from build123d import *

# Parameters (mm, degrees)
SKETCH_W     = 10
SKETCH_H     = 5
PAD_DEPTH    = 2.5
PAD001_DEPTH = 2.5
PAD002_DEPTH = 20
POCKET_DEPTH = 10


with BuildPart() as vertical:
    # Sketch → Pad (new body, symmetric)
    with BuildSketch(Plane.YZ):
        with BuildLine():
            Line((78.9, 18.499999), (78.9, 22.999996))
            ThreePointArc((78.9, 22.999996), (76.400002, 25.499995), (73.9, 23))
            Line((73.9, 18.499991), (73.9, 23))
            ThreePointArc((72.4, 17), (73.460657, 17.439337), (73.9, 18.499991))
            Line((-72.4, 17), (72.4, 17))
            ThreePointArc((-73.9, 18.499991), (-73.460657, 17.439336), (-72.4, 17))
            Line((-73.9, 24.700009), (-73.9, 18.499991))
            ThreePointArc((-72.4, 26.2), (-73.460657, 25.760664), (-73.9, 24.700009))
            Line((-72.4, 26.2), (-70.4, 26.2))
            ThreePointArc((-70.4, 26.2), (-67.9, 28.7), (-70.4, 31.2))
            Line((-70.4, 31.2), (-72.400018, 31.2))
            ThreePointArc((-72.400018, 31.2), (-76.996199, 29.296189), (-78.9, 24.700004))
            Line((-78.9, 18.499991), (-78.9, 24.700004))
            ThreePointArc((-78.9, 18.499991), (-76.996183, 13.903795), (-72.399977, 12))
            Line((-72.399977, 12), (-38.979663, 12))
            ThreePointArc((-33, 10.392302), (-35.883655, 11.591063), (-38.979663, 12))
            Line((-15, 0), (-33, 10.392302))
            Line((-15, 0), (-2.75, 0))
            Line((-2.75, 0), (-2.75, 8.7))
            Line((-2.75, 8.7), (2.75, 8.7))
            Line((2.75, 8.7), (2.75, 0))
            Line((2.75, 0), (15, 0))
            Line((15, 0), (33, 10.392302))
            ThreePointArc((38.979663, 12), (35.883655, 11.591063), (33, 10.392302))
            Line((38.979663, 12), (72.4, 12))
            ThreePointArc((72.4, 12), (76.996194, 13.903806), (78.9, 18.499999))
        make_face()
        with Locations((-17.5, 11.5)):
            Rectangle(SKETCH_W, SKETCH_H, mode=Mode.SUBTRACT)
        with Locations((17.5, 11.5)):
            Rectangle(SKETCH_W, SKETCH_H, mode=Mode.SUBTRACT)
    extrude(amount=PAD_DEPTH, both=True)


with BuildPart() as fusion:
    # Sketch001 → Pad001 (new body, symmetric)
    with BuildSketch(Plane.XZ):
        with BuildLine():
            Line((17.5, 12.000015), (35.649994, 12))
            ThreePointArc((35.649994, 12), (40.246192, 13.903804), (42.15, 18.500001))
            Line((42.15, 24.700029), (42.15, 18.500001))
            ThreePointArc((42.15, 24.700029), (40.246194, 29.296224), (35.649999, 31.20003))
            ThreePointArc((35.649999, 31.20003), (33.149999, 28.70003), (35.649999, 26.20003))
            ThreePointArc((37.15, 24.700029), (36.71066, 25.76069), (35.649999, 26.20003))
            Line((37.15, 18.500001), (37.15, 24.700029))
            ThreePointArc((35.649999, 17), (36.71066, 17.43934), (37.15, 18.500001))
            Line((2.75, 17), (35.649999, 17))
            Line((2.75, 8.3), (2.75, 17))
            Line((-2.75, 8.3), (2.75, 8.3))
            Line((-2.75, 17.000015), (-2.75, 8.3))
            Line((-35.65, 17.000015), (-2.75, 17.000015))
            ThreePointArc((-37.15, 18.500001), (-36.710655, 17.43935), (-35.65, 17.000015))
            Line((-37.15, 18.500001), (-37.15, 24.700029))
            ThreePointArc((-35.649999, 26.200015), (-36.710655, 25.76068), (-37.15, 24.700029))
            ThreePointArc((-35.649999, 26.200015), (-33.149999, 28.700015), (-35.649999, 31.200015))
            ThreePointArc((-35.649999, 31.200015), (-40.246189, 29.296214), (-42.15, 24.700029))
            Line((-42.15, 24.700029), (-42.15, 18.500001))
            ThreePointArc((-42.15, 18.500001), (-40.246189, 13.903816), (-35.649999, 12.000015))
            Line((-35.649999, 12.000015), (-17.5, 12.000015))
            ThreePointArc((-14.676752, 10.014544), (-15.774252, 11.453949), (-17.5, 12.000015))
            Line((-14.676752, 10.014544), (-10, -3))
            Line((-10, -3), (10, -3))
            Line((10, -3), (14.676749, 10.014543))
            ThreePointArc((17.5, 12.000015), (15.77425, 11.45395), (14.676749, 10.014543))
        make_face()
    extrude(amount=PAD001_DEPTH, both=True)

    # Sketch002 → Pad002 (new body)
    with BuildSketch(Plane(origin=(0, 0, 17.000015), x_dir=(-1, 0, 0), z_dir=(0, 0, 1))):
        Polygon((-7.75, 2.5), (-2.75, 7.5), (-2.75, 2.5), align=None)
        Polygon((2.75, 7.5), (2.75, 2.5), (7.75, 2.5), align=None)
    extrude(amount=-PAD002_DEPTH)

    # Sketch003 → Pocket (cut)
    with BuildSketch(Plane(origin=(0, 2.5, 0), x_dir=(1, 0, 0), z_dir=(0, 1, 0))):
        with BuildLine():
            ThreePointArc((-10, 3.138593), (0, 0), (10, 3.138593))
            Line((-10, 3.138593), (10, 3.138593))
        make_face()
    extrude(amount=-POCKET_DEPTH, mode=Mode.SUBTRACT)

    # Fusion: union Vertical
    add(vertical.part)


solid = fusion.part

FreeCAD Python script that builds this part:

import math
import FreeCAD as App
import Part
import Sketcher
from FreeCAD import Vector
Q = App.Units.Quantity


def add_polygon(sketch, points):
    """Adds a closed chain of lines whose ends are joined by coincident constraints."""
    first, n = sketch.GeometryCount, len(points)
    for a, b in zip(points, points[1:] + points[:1]):
        sketch.addGeometry(Part.LineSegment(App.Vector(*a, 0), App.Vector(*b, 0)), False)
    for i in range(n):
        sketch.addConstraint(Sketcher.Constraint("Coincident", first + i, 2, first + (i + 1) % n, 1))

doc = App.newDocument("Part")
body = doc.addObject("PartDesign::Body", "Body")

sketch1 = doc.addObject("Sketcher::SketchObject", "Sketch")
body.addObject(sketch1)
sketch1.AttachmentSupport = (doc.YZ_Plane, [""])
sketch1.MapMode = "FlatFace"
sketch1.addGeometry(Part.LineSegment(Vector(78.9, 18.5, 0), Vector(78.9, 23, 0)), False)
sketch1.addGeometry(Part.ArcOfCircle(Part.Circle(Vector(76.4, 23, 0), Vector(0, 0, 1), 2.5), math.radians(0), math.radians(180)), False)
sketch1.addGeometry(Part.LineSegment(Vector(73.9, 23, 0), Vector(73.9, 18.5, 0)), False)
sketch1.addGeometry(Part.ArcOfCircle(Part.Circle(Vector(72.4, 18.5, 0), Vector(0, 0, 1), 1.5), math.radians(-90), math.radians(0)), False)
sketch1.addGeometry(Part.LineSegment(Vector(72.4, 17, 0), Vector(-72.4, 17, 0)), False)
sketch1.addGeometry(Part.ArcOfCircle(Part.Circle(Vector(-72.4, 18.5, 0), Vector(0, 0, 1), 1.5), math.radians(-180), math.radians(-90)), False)
sketch1.addGeometry(Part.LineSegment(Vector(-73.9, 18.5, 0), Vector(-73.9, 24.7, 0)), False)
sketch1.addGeometry(Part.ArcOfCircle(Part.Circle(Vector(-72.4, 24.7, 0), Vector(0, 0, 1), 1.5), math.radians(90), math.radians(180)), False)
sketch1.addGeometry(Part.LineSegment(Vector(-72.4, 26.2, 0), Vector(-70.4, 26.2, 0)), False)
sketch1.addGeometry(Part.ArcOfCircle(Part.Circle(Vector(-70.4, 28.7, 0), Vector(0, 0, 1), 2.5), math.radians(-90), math.radians(90)), False)
sketch1.addGeometry(Part.LineSegment(Vector(-70.4, 31.2, 0), Vector(-72.4, 31.2, 0)), False)
sketch1.addGeometry(Part.ArcOfCircle(Part.Circle(Vector(-72.4, 24.7, 0), Vector(0, 0, 1), 6.5), math.radians(90), math.radians(180)), False)
sketch1.addGeometry(Part.LineSegment(Vector(-78.9, 24.7, 0), Vector(-78.9, 18.5, 0)), False)
sketch1.addGeometry(Part.ArcOfCircle(Part.Circle(Vector(-72.4, 18.5, 0), Vector(0, 0, 1), 6.5), math.radians(-180), math.radians(-90)), False)
sketch1.addGeometry(Part.LineSegment(Vector(-72.4, 12, 0), Vector(-39, 12, 0)), False)
sketch1.addGeometry(Part.ArcOfCircle(Part.Circle(Vector(-39, 0.1, 0), Vector(0, 0, 1), 11.9), math.radians(60), math.radians(90)), False)
sketch1.addGeometry(Part.LineSegment(Vector(-33, 10.4, 0), Vector(-15, 0, 0)), False)
sketch1.addGeometry(Part.LineSegment(Vector(-15, 0, 0), Vector(-2.8, 0, 0)), False)
sketch1.addGeometry(Part.LineSegment(Vector(-2.8, 0, 0), Vector(-2.8, 8.7, 0)), False)
sketch1.addGeometry(Part.LineSegment(Vector(-2.8, 8.7, 0), Vector(2.8, 8.7, 0)), False)
sketch1.addGeometry(Part.LineSegment(Vector(2.8, 8.7, 0), Vector(2.8, 0, 0)), False)
sketch1.addGeometry(Part.LineSegment(Vector(2.8, 0, 0), Vector(15, 0, 0)), False)
sketch1.addGeometry(Part.LineSegment(Vector(15, 0, 0), Vector(33, 10.4, 0)), False)
sketch1.addGeometry(Part.ArcOfCircle(Part.Circle(Vector(39, 0.1, 0), Vector(0, 0, 1), 11.9), math.radians(90), math.radians(120)), False)
sketch1.addGeometry(Part.LineSegment(Vector(39, 12, 0), Vector(72.4, 12, 0)), False)
sketch1.addGeometry(Part.ArcOfCircle(Part.Circle(Vector(72.4, 18.5, 0), Vector(0, 0, 1), 6.5), math.radians(-90), math.radians(0)), False)
add_polygon(sketch1, [(-12.5, 9), (-22.5, 9), (-22.5, 14), (-12.5, 14)])
add_polygon(sketch1, [(22.5, 9), (12.5, 9), (12.5, 14), (22.5, 14)])
sketch1.addConstraint([
    Sketcher.Constraint("Tangent", 0, 2, 1, 1),
    Sketcher.Constraint("Coincident", 1, 2, 2, 1),
    Sketcher.Constraint("Coincident", 2, 2, 3, 2),
    Sketcher.Constraint("Tangent", 3, 1, 4, 1),
    Sketcher.Constraint("Tangent", 4, 2, 5, 2),
    Sketcher.Constraint("Coincident", 5, 1, 6, 1),
    Sketcher.Constraint("Coincident", 6, 2, 7, 2),
    Sketcher.Constraint("Tangent", 7, 1, 8, 1),
    Sketcher.Constraint("Tangent", 8, 2, 9, 1),
    Sketcher.Constraint("Tangent", 9, 2, 10, 1),
    Sketcher.Constraint("Coincident", 10, 2, 11, 1),
    Sketcher.Constraint("Tangent", 11, 2, 12, 1),
    Sketcher.Constraint("Tangent", 12, 2, 13, 1),
    Sketcher.Constraint("Coincident", 13, 2, 14, 1),
    Sketcher.Constraint("Tangent", 14, 2, 15, 2),
    Sketcher.Constraint("Coincident", 15, 1, 16, 1),
    Sketcher.Constraint("Coincident", 16, 2, 17, 1),
    Sketcher.Constraint("Coincident", 17, 2, 18, 1),
    Sketcher.Constraint("Coincident", 18, 2, 19, 1),
    Sketcher.Constraint("Coincident", 19, 2, 20, 1),
    Sketcher.Constraint("Coincident", 20, 2, 21, 1),
    Sketcher.Constraint("Coincident", 21, 2, 22, 1),
    Sketcher.Constraint("Coincident", 22, 2, 23, 2),
    Sketcher.Constraint("Tangent", 23, 1, 24, 1),
    Sketcher.Constraint("Tangent", 24, 2, 25, 1),
    Sketcher.Constraint("Tangent", 25, 2, 0, 1),
    Sketcher.Constraint("Vertical", 0),
    Sketcher.Constraint("Vertical", 2),
    Sketcher.Constraint("Horizontal", 4),
    Sketcher.Constraint("Vertical", 6),
    Sketcher.Constraint("Horizontal", 8),
    Sketcher.Constraint("Horizontal", 10),
    Sketcher.Constraint("Vertical", 12),
    Sketcher.Constraint("Horizontal", 14),
    Sketcher.Constraint("Horizontal", 17),
    Sketcher.Constraint("Vertical", 18),
    Sketcher.Constraint("Horizontal", 19),
    Sketcher.Constraint("Vertical", 20),
    Sketcher.Constraint("Horizontal", 21),
    Sketcher.Constraint("Horizontal", 24),
    Sketcher.Constraint("Horizontal", 26),
    Sketcher.Constraint("Vertical", 27),
    Sketcher.Constraint("Horizontal", 28),
    Sketcher.Constraint("Vertical", 29),
    Sketcher.Constraint("Horizontal", 30),
    Sketcher.Constraint("Vertical", 31),
    Sketcher.Constraint("Horizontal", 32),
    Sketcher.Constraint("Vertical", 33),
    Sketcher.Constraint("Coincident", 11, 3, 7, 3),
    Sketcher.Constraint("Coincident", 13, 3, 5, 3),
    Sketcher.Constraint("Coincident", 25, 3, 3, 3),
    Sketcher.Constraint("Equal", 3, 5),
    Sketcher.Constraint("Equal", 5, 7),
    Sketcher.Constraint("Equal", 1, 9),
    Sketcher.Constraint("Equal", 15, 23),
    Sketcher.Constraint("Symmetric", 17, 2, 20, 2, -1, 1),
    Sketcher.Constraint("Symmetric", 2, 2, 5, 1, -2),
    Sketcher.Constraint("Symmetric", 16, 2, 21, 2, -2),
    Sketcher.Constraint("Symmetric", 15, 1, 22, 2, -2),
    Sketcher.Constraint("Symmetric", 29, 2, 30, 2, -2),
    Sketcher.Constraint("Symmetric", 27, 2, 32, 2, -2),
    Sketcher.Constraint("Horizontal", 5, 1, 12, 2),
    Sketcher.Constraint("Radius", 1, 2.5),
    Sketcher.Constraint("Radius", 3, 1.500001),
    Sketcher.Constraint("DistanceX", 8, 1, 8, 2, 2.0),
    Sketcher.Constraint("DistanceX", 26, 2, 26, 1, 10.0),
    Sketcher.Constraint("DistanceY", 27, 1, 27, 2, 5.0),
    Sketcher.Constraint("Angle", 16, Q("-29.999993 deg")),
    Sketcher.Constraint("DistanceX", 4, 2, 4, 1, 144.8),
    Sketcher.Constraint("DistanceX", 19, 1, 19, 2, 5.5),
    Sketcher.Constraint("DistanceY", 18, 1, 18, 2, 8.7),
    Sketcher.Constraint("DistanceY", -1, 1, 1, 2, 23.0),
    Sketcher.Constraint("DistanceY", -1, 1, 3, 1, 17.0),
    Sketcher.Constraint("DistanceX", 15, 1, -1, 1, 33.0),
    Sketcher.Constraint("DistanceX", 16, 2, -1, 1, 15.0),
    Sketcher.Constraint("DistanceY", -1, 1, 26, 2, 9.0),
    Sketcher.Constraint("DistanceY", -1, 1, 7, 3, 24.700001),
    Sketcher.Constraint("DistanceX", 26, 2, -1, 1, 22.5),
    Sketcher.Constraint("Radius", 15, 11.924221),
    Sketcher.Constraint("DistanceX", 10, 2, 10, 1, 2.000018),
    Sketcher.Constraint("DistanceX", 14, 1, 14, 2, 33.420314),
    Sketcher.Constraint("DistanceY", 0, 1, 0, 2, 4.499997),
    Sketcher.Constraint("DistanceY", 6, 1, 6, 2, 6.200018),
])
pad1 = doc.addObject("PartDesign::Pad", "Pad")
body.addObject(pad1)
pad1.Profile = sketch1
pad1.Length = 5
pad1.Midplane = True
body2 = doc.addObject("PartDesign::Body", "Body001")
body2.AllowCompound = True

sketch2 = doc.addObject("Sketcher::SketchObject", "Sketch001")
body2.addObject(sketch2)
sketch2.AttachmentSupport = (doc.getObject("XZ_Plane001"), [""])
sketch2.MapMode = "FlatFace"
sketch2.addGeometry([
    Part.LineSegment(Vector(17.5, 12, 0), Vector(35.6, 12, 0)),
    Part.ArcOfCircle(Part.Circle(Vector(35.6, 18.5, 0), Vector(0, 0, 1), 6.5), math.radians(-90), math.radians(0)),
    Part.LineSegment(Vector(42.1, 18.5, 0), Vector(42.1, 24.7, 0)),
    Part.ArcOfCircle(Part.Circle(Vector(35.6, 24.7, 0), Vector(0, 0, 1), 6.5), math.radians(0), math.radians(90)),
    Part.ArcOfCircle(Part.Circle(Vector(35.6, 28.7, 0), Vector(0, 0, 1), 2.5), math.radians(90), math.radians(270)),
    Part.ArcOfCircle(Part.Circle(Vector(35.6, 24.7, 0), Vector(0, 0, 1), 1.5), math.radians(0), math.radians(90)),
    Part.LineSegment(Vector(37.1, 24.7, 0), Vector(37.1, 18.5, 0)),
    Part.ArcOfCircle(Part.Circle(Vector(35.6, 18.5, 0), Vector(0, 0, 1), 1.5), math.radians(-90), math.radians(0)),
    Part.LineSegment(Vector(35.6, 17, 0), Vector(2.8, 17, 0)),
    Part.LineSegment(Vector(2.8, 17, 0), Vector(2.8, 8.3, 0)),
    Part.LineSegment(Vector(2.8, 8.3, 0), Vector(-2.8, 8.3, 0)),
    Part.LineSegment(Vector(-2.8, 8.3, 0), Vector(-2.8, 17, 0)),
    Part.LineSegment(Vector(-2.8, 17, 0), Vector(-35.6, 17, 0)),
    Part.ArcOfCircle(Part.Circle(Vector(-35.6, 18.5, 0), Vector(0, 0, 1), 1.5), math.radians(-180), math.radians(-90)),
    Part.LineSegment(Vector(-37.1, 18.5, 0), Vector(-37.1, 24.7, 0)),
    Part.ArcOfCircle(Part.Circle(Vector(-35.6, 24.7, 0), Vector(0, 0, 1), 1.5), math.radians(90), math.radians(180)),
    Part.ArcOfCircle(Part.Circle(Vector(-35.6, 28.7, 0), Vector(0, 0, 1), 2.5), math.radians(-90), math.radians(90)),
    Part.ArcOfCircle(Part.Circle(Vector(-35.6, 24.7, 0), Vector(0, 0, 1), 6.5), math.radians(90), math.radians(180)),
    Part.LineSegment(Vector(-42.1, 24.7, 0), Vector(-42.1, 18.5, 0)),
    Part.ArcOfCircle(Part.Circle(Vector(-35.6, 18.5, 0), Vector(0, 0, 1), 6.5), math.radians(-180), math.radians(-90)),
    Part.LineSegment(Vector(-35.6, 12, 0), Vector(-17.5, 12, 0)),
    Part.ArcOfCircle(Part.Circle(Vector(-17.5, 9, 0), Vector(0, 0, 1), 3), math.radians(20), math.radians(90)),
    Part.LineSegment(Vector(-14.7, 10, 0), Vector(-10, -3, 0)),
    Part.LineSegment(Vector(-10, -3, 0), Vector(10, -3, 0)),
    Part.LineSegment(Vector(10, -3, 0), Vector(14.7, 10, 0)),
    Part.ArcOfCircle(Part.Circle(Vector(17.5, 9, 0), Vector(0, 0, 1), 3), math.radians(90), math.radians(160)),
], False)
sketch2.addConstraint([
    Sketcher.Constraint("Tangent", 0, 2, 1, 1),
    Sketcher.Constraint("Tangent", 1, 2, 2, 1),
    Sketcher.Constraint("Tangent", 2, 2, 3, 1),
    Sketcher.Constraint("Tangent", 3, 2, 4, 1),
    Sketcher.Constraint("Tangent", 4, 2, 5, 2),
    Sketcher.Constraint("Tangent", 5, 1, 6, 1),
    Sketcher.Constraint("Tangent", 6, 2, 7, 2),
    Sketcher.Constraint("Tangent", 7, 1, 8, 1),
    Sketcher.Constraint("Coincident", 8, 2, 9, 1),
    Sketcher.Constraint("Coincident", 9, 2, 10, 1),
    Sketcher.Constraint("Coincident", 10, 2, 11, 1),
    Sketcher.Constraint("Coincident", 11, 2, 12, 1),
    Sketcher.Constraint("Tangent", 12, 2, 13, 2),
    Sketcher.Constraint("Coincident", 13, 1, 14, 1),
    Sketcher.Constraint("Coincident", 14, 2, 15, 2),
    Sketcher.Constraint("Tangent", 15, 1, 16, 1),
    Sketcher.Constraint("Tangent", 16, 2, 17, 1),
    Sketcher.Constraint("Coincident", 17, 2, 18, 1),
    Sketcher.Constraint("Coincident", 18, 2, 19, 1),
    Sketcher.Constraint("Tangent", 19, 2, 20, 1),
    Sketcher.Constraint("Tangent", 20, 2, 21, 2),
    Sketcher.Constraint("Tangent", 21, 1, 22, 1),
    Sketcher.Constraint("Coincident", 22, 2, 23, 1),
    Sketcher.Constraint("Coincident", 23, 2, 24, 1),
    Sketcher.Constraint("Tangent", 24, 2, 25, 2),
    Sketcher.Constraint("Tangent", 25, 1, 0, 1),
    Sketcher.Constraint("Vertical", 2),
    Sketcher.Constraint("Vertical", 6),
    Sketcher.Constraint("Horizontal", 8),
    Sketcher.Constraint("Vertical", 9),
    Sketcher.Constraint("Horizontal", 10),
    Sketcher.Constraint("Vertical", 11),
    Sketcher.Constraint("Horizontal", 12),
    Sketcher.Constraint("Vertical", 14),
    Sketcher.Constraint("Vertical", 18),
    Sketcher.Constraint("Horizontal", 20),
    Sketcher.Constraint("Horizontal", 23),
    Sketcher.Constraint("Coincident", 5, 3, 3, 3),
    Sketcher.Constraint("Coincident", 7, 3, 1, 3),
    Sketcher.Constraint("Coincident", 17, 3, 15, 3),
    Sketcher.Constraint("Coincident", 19, 3, 13, 3),
    Sketcher.Constraint("Equal", 1, 3),
    Sketcher.Constraint("Equal", 7, 13),
    Sketcher.Constraint("Equal", 13, 15),
    Sketcher.Constraint("Equal", 4, 16),
    Sketcher.Constraint("Symmetric", 21, 3, 25, 3, -2),
    Sketcher.Constraint("Symmetric", 6, 2, 13, 1, -2),
    Sketcher.Constraint("Symmetric", 21, 1, 24, 2, -2),
    Sketcher.Constraint("Horizontal", 5, 1, 14, 2),
    Sketcher.Constraint("Horizontal", 14, 2, 17, 2),
    Sketcher.Constraint("Horizontal", 13, 1, 18, 2),
    Sketcher.Constraint("Vertical", 3, 3, 4, 3),
    Sketcher.Constraint("Vertical", 15, 3, 16, 3),
    Sketcher.Constraint("Equal", 8, 12),
    Sketcher.Constraint("Radius", 21, 3.000001),
    Sketcher.Constraint("Radius", 1, 6.5),
    Sketcher.Constraint("Radius", 4, 2.5),
    Sketcher.Constraint("DistanceX", 23, 1, 23, 2, 20.0),
    Sketcher.Constraint("DistanceX", 8, 2, 8, 1, 32.899999),
    Sketcher.Constraint("DistanceX", 10, 2, 10, 1, 5.5),
    Sketcher.Constraint("DistanceY", 9, 2, 9, 1, 8.7),
    Sketcher.Constraint("DistanceY", -1, 1, 0, 2, 12.0),
    Sketcher.Constraint("DistanceY", 22, 2, -1, 1, 3.0),
    Sketcher.Constraint("DistanceX", 20, 1, 20, 2, 18.149999),
    Sketcher.Constraint("DistanceX", -1, 1, 25, 1, 17.5),
    Sketcher.Constraint("DistanceY", 13, 3, 15, 3, 6.199999),
    Sketcher.Constraint("DistanceY", 2, 1, 2, 2, 6.200028),
])
pad2 = doc.addObject("PartDesign::Pad", "Pad001")
body2.addObject(pad2)
pad2.Profile = sketch2
pad2.Length = 5
pad2.Midplane = True

sketch3 = doc.addObject("Sketcher::SketchObject", "Sketch002")
body2.addObject(sketch3)
sketch3.AttachmentSupport = (doc.getObject("XY_Plane001"), [""])
sketch3.MapMode = "FlatFace"
sketch3.AttachmentOffset = App.Placement(Vector(0, 0, 17.000015), App.Rotation())
add_polygon(sketch3, [(3, -8), (8, -2), (3, -2)])
add_polygon(sketch3, [(-3, -8), (-3, -2), (-8, -2)])
sketch3.addConstraint([
    Sketcher.Constraint("Horizontal", 1),
    Sketcher.Constraint("Vertical", 2),
    Sketcher.Constraint("Vertical", 3),
    Sketcher.Constraint("Horizontal", 4),
    Sketcher.Constraint("Symmetric", 1, 2, 3, 2, -2),
    Sketcher.Constraint("Perpendicular", 0, 5),
    Sketcher.Constraint("Horizontal", 2, 2, 5, 2),
    Sketcher.Constraint("Equal", 1, 4),
    Sketcher.Constraint("DistanceX", 1, 2, 1, 1, 5.0),
    Sketcher.Constraint("DistanceY", 0, 2, -1, 1, 2.5),
    Sketcher.Constraint("DistanceX", 3, 2, 1, 2, 5.5),
])
pad3 = doc.addObject("PartDesign::Pad", "Pad002")
body2.addObject(pad3)
pad3.Profile = sketch3
pad3.Length = 20
pad3.Reversed = True

sketch4 = doc.addObject("Sketcher::SketchObject", "Sketch003")
body2.addObject(sketch4)
sketch4.AttachmentSupport = (doc.getObject("XZ_Plane001"), [""])
sketch4.MapMode = "FlatFace"
sketch4.AttachmentOffset = App.Placement(Vector(0, 0, -2.5), App.Rotation())
sketch4.addGeometry([
    Part.ArcOfCircle(Part.Circle(Vector(0, -18, 0), Vector(0, 0, 1), 18), math.radians(55), math.radians(125)),
    Part.LineSegment(Vector(10, -3, 0), Vector(-10, -3, 0)),
], False)
sketch4.addConstraint([
    Sketcher.Constraint("Coincident", 0, 1, 1, 1),
    Sketcher.Constraint("Coincident", 1, 2, 0, 2),
    Sketcher.Constraint("Horizontal", 1),
    Sketcher.Constraint("PointOnObject", 0, 3, -2),
    Sketcher.Constraint("Radius", 0, 17.500002),
    Sketcher.Constraint("DistanceX", 1, 2, 1, 1, 20.0),
    Sketcher.Constraint("DistanceY", 0, 3, -1, 1, 17.500002),
])
pocket1 = doc.addObject("PartDesign::Pocket", "Pocket")
body2.addObject(pocket1)
pocket1.Profile = sketch4
pocket1.Length = 10
pocket1.Reversed = True
doc.recompute()

boolean = doc.addObject("PartDesign::Boolean", "Boolean")
body2.addObject(boolean)
boolean.Type = "Fuse"
boolean.addObjects([body])

doc.recompute()
